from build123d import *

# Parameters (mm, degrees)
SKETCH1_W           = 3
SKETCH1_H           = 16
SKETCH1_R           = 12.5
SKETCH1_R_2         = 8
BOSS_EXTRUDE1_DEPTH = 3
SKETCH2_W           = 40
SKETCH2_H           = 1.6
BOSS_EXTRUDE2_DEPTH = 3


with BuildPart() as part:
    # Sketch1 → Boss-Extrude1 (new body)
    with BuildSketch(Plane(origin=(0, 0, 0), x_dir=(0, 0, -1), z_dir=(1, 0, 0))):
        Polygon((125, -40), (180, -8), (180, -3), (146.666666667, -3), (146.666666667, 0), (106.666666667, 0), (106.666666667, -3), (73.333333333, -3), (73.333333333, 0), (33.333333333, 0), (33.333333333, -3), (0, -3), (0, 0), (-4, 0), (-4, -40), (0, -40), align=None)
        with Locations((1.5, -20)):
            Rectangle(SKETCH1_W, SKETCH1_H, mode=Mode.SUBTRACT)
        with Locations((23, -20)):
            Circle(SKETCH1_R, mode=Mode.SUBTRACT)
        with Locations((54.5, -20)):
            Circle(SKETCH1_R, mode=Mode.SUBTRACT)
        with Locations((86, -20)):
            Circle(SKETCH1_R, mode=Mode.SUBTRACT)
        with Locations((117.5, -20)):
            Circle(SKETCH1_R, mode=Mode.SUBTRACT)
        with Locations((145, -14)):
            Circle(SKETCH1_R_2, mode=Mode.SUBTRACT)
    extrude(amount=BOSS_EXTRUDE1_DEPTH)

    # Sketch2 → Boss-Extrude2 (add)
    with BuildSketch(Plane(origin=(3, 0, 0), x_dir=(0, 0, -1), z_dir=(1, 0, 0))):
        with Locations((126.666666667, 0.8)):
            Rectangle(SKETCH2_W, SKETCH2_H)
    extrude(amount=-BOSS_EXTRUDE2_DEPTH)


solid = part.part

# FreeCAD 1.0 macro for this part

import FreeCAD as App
import Part
import Sketcher

V = App.Vector
Q = App.Units.Quantity

doc = App.newDocument("Part")
params = doc.addObject("Spreadsheet::Sheet", "Params")
for row, (alias, value) in enumerate([
    ("sketch1_diameter", "25 mm"),
    ("sketch1_diameter2", "16 mm"),
    ("sketch1_width", "5 mm"),
    ("sketch1_width2", "3 mm"),
    ("sketch1_width3", "40 mm"),
    ("pad1_length", "3 mm"),
    ("sketch2_height", "40 mm"),
    ("sketch2_width", "1.6 mm"),
    ("pad2_length", "3 mm"),
], start=1):
    params.set(f"A{row}", alias)
    params.set(f"B{row}", "=" + value)
    params.setAlias(f"B{row}", alias)

body = doc.addObject("PartDesign::Body", "Body")

# Sketch on YZ plane
sketch1 = body.newObject("Sketcher::SketchObject", "Sketch")
sketch1.AttachmentSupport = (doc.getObject("YZ_Plane"), [""])
sketch1.MapMode = "FlatFace"
sketch1.addGeometry(Part.LineSegment(V(-40, -125, 0), V(-8, -180, 0)), False)
sketch1.addGeometry(Part.LineSegment(V(-8, -180, 0), V(-3, -180, 0)), False)
sketch1.addGeometry(Part.LineSegment(V(-3, -180, 0), V(-3, -146.666667, 0)), False)
sketch1.addGeometry(Part.LineSegment(V(-3, -146.666667, 0), V(0, -146.666667, 0)), False)
sketch1.addGeometry(Part.LineSegment(V(0, -146.666667, 0), V(0, -106.666667, 0)), False)
sketch1.addGeometry(Part.LineSegment(V(0, -106.666667, 0), V(-3, -106.666667, 0)), False)
sketch1.addGeometry(Part.LineSegment(V(-3, -106.666667, 0), V(-3, -73.333333, 0)), False)
sketch1.addGeometry(Part.LineSegment(V(-3, -73.333333, 0), V(0, -73.333333, 0)), False)
sketch1.addGeometry(Part.LineSegment(V(0, -73.333333, 0), V(0, -33.333333, 0)), False)
sketch1.addGeometry(Part.LineSegment(V(0, -33.333333, 0), V(-3, -33.333333, 0)), False)
sketch1.addGeometry(Part.LineSegment(V(-3, -33.333333, 0), V(-3, 0, 0)), False)
sketch1.addGeometry(Part.LineSegment(V(-3, 0, 0), V(0, 0, 0)), False)
sketch1.addGeometry(Part.LineSegment(V(0, 0, 0), V(0, 4, 0)), False)
sketch1.addGeometry(Part.LineSegment(V(0, 4, 0), V(-40, 4, 0)), False)
sketch1.addGeometry(Part.LineSegment(V(-40, 4, 0), V(-40, -125, 0)), False)
sketch1.addGeometry(Part.LineSegment(V(-28, -3, 0), V(-28, 0, 0)), False)
sketch1.addGeometry(Part.LineSegment(V(-28, 0, 0), V(-12, 0, 0)), False)
sketch1.addGeometry(Part.LineSegment(V(-12, 0, 0), V(-12, -3, 0)), False)
sketch1.addGeometry(Part.LineSegment(V(-12, -3, 0), V(-28, -3, 0)), False)
sketch1.addGeometry(Part.Circle(V(-20, -23, 0), V(0, 0, 1), 12.5), False)
sketch1.addGeometry(Part.Circle(V(-20, -54.5, 0), V(0, 0, 1), 12.5), False)
sketch1.addGeometry(Part.Circle(V(-20, -86, 0), V(0, 0, 1), 12.5), False)
sketch1.addGeometry(Part.Circle(V(-20, -117.5, 0), V(0, 0, 1), 12.5), False)
sketch1.addGeometry(Part.Circle(V(-14, -145, 0), V(0, 0, 1), 8), False)
sketch1.addConstraint(Sketcher.Constraint("Coincident", 0, 2, 1, 1))
sketch1.addConstraint(Sketcher.Constraint("Coincident", 1, 2, 2, 1))
sketch1.addConstraint(Sketcher.Constraint("Coincident", 2, 2, 3, 1))
sketch1.addConstraint(Sketcher.Constraint("Coincident", 3, 2, 4, 1))
sketch1.addConstraint(Sketcher.Constraint("Coincident", 4, 2, 5, 1))
sketch1.addConstraint(Sketcher.Constraint("Coincident", 5, 2, 6, 1))
sketch1.addConstraint(Sketcher.Constraint("Coincident", 6, 2, 7, 1))
sketch1.addConstraint(Sketcher.Constraint("Coincident", 7, 2, 8, 1))
sketch1.addConstraint(Sketcher.Constraint("Coincident", 8, 2, 9, 1))
sketch1.addConstraint(Sketcher.Constraint("Coincident", 9, 2, 10, 1))
sketch1.addConstraint(Sketcher.Constraint("Coincident", 10, 2, 11, 1))
sketch1.addConstraint(Sketcher.Constraint("Coincident", 11, 2, 12, 1))
sketch1.addConstraint(Sketcher.Constraint("Coincident", 12, 2, 13, 1))
sketch1.addConstraint(Sketcher.Constraint("Coincident", 13, 2, 14, 1))
sketch1.addConstraint(Sketcher.Constraint("Coincident", 14, 2, 0, 1))
sketch1.addConstraint(Sketcher.Constraint("Coincident", 15, 2, 16, 1))
sketch1.addConstraint(Sketcher.Constraint("Coincident", 16, 2, 17, 1))
sketch1.addConstraint(Sketcher.Constraint("Coincident", 17, 2, 18, 1))
sketch1.addConstraint(Sketcher.Constraint("Coincident", 18, 2, 15, 1))
sketch1.addConstraint(Sketcher.Constraint("Horizontal", 1))
sketch1.addConstraint(Sketcher.Constraint("Vertical", 2))
sketch1.addConstraint(Sketcher.Constraint("Horizontal", 3))
sketch1.addConstraint(Sketcher.Constraint("Vertical", 4))
sketch1.addConstraint(Sketcher.Constraint("Horizontal", 5))
sketch1.addConstraint(Sketcher.Constraint("Vertical", 6))
sketch1.addConstraint(Sketcher.Constraint("Horizontal", 7))
sketch1.addConstraint(Sketcher.Constraint("Vertical", 8))
sketch1.addConstraint(Sketcher.Constraint("Horizontal", 9))
sketch1.addConstraint(Sketcher.Constraint("Vertical", 10))
sketch1.addConstraint(Sketcher.Constraint("Horizontal", 11))
sketch1.addConstraint(Sketcher.Constraint("Vertical", 12))
sketch1.addConstraint(Sketcher.Constraint("Horizontal", 13))
sketch1.addConstraint(Sketcher.Constraint("Vertical", 14))
sketch1.addConstraint(Sketcher.Constraint("Vertical", 15))
sketch1.addConstraint(Sketcher.Constraint("Horizontal", 16))
sketch1.addConstraint(Sketcher.Constraint("Vertical", 17))
sketch1.addConstraint(Sketcher.Constraint("Horizontal", 18))
sketch1.addConstraint(Sketcher.Constraint("Coincident", 11, 2, -1, 1))
sketch1.addConstraint(Sketcher.Constraint("Equal", 19, 20))
sketch1.addConstraint(Sketcher.Constraint("Equal", 20, 21))
sketch1.addConstraint(Sketcher.Constraint("Equal", 21, 22))
sketch1.addConstraint(Sketcher.Constraint("PointOnObject", 3, 2, -2))
sketch1.addConstraint(Sketcher.Constraint("PointOnObject", 7, 2, -2))
sketch1.addConstraint(Sketcher.Constraint("PointOnObject", 15, 2, -1))
sketch1.addConstraint(Sketcher.Constraint("Vertical", 19, 3, 20, 3))
sketch1.addConstraint(Sketcher.Constraint("Vertical", 20, 3, 21, 3))
sketch1.addConstraint(Sketcher.Constraint("Vertical", 21, 3, 22, 3))
sketch1.addConstraint(Sketcher.Constraint("Vertical", 2, 2, 5, 2))
sketch1.addConstraint(Sketcher.Constraint("Vertical", 6, 2, 9, 2))
sketch1.addConstraint(Sketcher.Constraint("Equal", 13, 4))
sketch1.addConstraint(Sketcher.Constraint("Equal", 2, 6))
sketch1.addConstraint(Sketcher.Constraint("Equal", 4, 8))
sketch1.addConstraint(Sketcher.Constraint("Equal", 6, 10))
sketch1.addConstraint(Sketcher.Constraint("Equal", 11, 15))
sketch1.addConstraint(Sketcher.Constraint("Diameter", 19, Q("25 mm")))
sketch1.addConstraint(Sketcher.Constraint("Diameter", 23, Q("16 mm")))
sketch1.addConstraint(Sketcher.Constraint("DistanceX", 1, 1, 1, 2, Q("5 mm")))
sketch1.addConstraint(Sketcher.Constraint("DistanceX", 3, 1, 3, 2, Q("3 mm")))
sketch1.addConstraint(Sketcher.Constraint("DistanceX", 13, 2, 13, 1, Q("40 mm")))
sketch1.addConstraint(Sketcher.Constraint("DistanceX", 16, 1, 16, 2, Q("16 mm")))
sketch1.addConstraint(Sketcher.Constraint("DistanceY", 12, 1, 12, 2, Q("4 mm")))
sketch1.addConstraint(Sketcher.Constraint("DistanceY", 14, 2, 14, 1, Q("129 mm")))
sketch1.addConstraint(Sketcher.Constraint("DistanceX", 19, 3, -1, 1, Q("20 mm")))
sketch1.addConstraint(Sketcher.Constraint("DistanceY", 19, 3, -1, 1, Q("23 mm")))
sketch1.addConstraint(Sketcher.Constraint("DistanceY", 21, 3, -1, 1, Q("86 mm")))
sketch1.addConstraint(Sketcher.Constraint("DistanceX", 23, 3, -1, 1, Q("14 mm")))
sketch1.addConstraint(Sketcher.Constraint("DistanceY", 23, 3, -1, 1, Q("145 mm")))
sketch1.addConstraint(Sketcher.Constraint("DistanceY", 0, 2, -1, 1, Q("180 mm")))
sketch1.addConstraint(Sketcher.Constraint("DistanceX", 15, 2, -1, 1, Q("28 mm")))
sketch1.addConstraint(Sketcher.Constraint("DistanceY", 22, 3, 20, 3, Q("63 mm")))
sketch1.addConstraint(Sketcher.Constraint("DistanceY", 20, 3, -1, 1, Q("54.5 mm")))
sketch1.setExpression("Constraints[54]", "Params.sketch1_diameter")
sketch1.setExpression("Constraints[55]", "Params.sketch1_diameter2")
sketch1.setExpression("Constraints[56]", "Params.sketch1_width")
sketch1.setExpression("Constraints[57]", "Params.sketch1_width2")
sketch1.setExpression("Constraints[58]", "Params.sketch1_width3")
pad1 = body.newObject("PartDesign::Pad", "Pad")
pad1.Profile = sketch1
pad1.setExpression("Length", "Params.pad1_length")

# Sketch on YZ plane
sketch2 = body.newObject("Sketcher::SketchObject", "Sketch001")
sketch2.AttachmentSupport = (doc.getObject("YZ_Plane"), [""])
sketch2.MapMode = "FlatFace"
sketch2.AttachmentOffset = App.Placement(V(0, 0, 3), App.Rotation())
sketch2.addGeometry(Part.LineSegment(V(1.6, -106.666667, 0), V(0, -106.666667, 0)), False)
sketch2.addGeometry(Part.LineSegment(V(0, -106.666667, 0), V(0, -146.666667, 0)), False)
sketch2.addGeometry(Part.LineSegment(V(0, -146.666667, 0), V(1.6, -146.666667, 0)), False)
sketch2.addGeometry(Part.LineSegment(V(1.6, -146.666667, 0), V(1.6, -106.666667, 0)), False)
sketch2.addConstraint(Sketcher.Constraint("Coincident", 0, 2, 1, 1))
sketch2.addConstraint(Sketcher.Constraint("Coincident", 1, 2, 2, 1))
sketch2.addConstraint(Sketcher.Constraint("Coincident", 2, 2, 3, 1))
sketch2.addConstraint(Sketcher.Constraint("Coincident", 3, 2, 0, 1))
sketch2.addConstraint(Sketcher.Constraint("Horizontal", 0))
sketch2.addConstraint(Sketcher.Constraint("Vertical", 1))
sketch2.addConstraint(Sketcher.Constraint("Horizontal", 2))
sketch2.addConstraint(Sketcher.Constraint("Vertical", 3))
sketch2.addConstraint(Sketcher.Constraint("PointOnObject", 0, 2, -2))
sketch2.addConstraint(Sketcher.Constraint("DistanceY", 1, 2, 1, 1, Q("40 mm")))
sketch2.addConstraint(Sketcher.Constraint("DistanceX", 0, 2, 0, 1, Q("1.6 mm")))
sketch2.addConstraint(Sketcher.Constraint("DistanceY", 0, 2, -1, 1, Q("106.666667 mm")))
sketch2.setExpression("Constraints[9]", "Params.sketch2_height")
sketch2.setExpression("Constraints[10]", "Params.sketch2_width")
pad2 = body.newObject("PartDesign::Pad", "Pad001")
pad2.Profile = sketch2
pad2.setExpression("Length", "Params.pad2_length")
pad2.Reversed = True

doc.recompute()
